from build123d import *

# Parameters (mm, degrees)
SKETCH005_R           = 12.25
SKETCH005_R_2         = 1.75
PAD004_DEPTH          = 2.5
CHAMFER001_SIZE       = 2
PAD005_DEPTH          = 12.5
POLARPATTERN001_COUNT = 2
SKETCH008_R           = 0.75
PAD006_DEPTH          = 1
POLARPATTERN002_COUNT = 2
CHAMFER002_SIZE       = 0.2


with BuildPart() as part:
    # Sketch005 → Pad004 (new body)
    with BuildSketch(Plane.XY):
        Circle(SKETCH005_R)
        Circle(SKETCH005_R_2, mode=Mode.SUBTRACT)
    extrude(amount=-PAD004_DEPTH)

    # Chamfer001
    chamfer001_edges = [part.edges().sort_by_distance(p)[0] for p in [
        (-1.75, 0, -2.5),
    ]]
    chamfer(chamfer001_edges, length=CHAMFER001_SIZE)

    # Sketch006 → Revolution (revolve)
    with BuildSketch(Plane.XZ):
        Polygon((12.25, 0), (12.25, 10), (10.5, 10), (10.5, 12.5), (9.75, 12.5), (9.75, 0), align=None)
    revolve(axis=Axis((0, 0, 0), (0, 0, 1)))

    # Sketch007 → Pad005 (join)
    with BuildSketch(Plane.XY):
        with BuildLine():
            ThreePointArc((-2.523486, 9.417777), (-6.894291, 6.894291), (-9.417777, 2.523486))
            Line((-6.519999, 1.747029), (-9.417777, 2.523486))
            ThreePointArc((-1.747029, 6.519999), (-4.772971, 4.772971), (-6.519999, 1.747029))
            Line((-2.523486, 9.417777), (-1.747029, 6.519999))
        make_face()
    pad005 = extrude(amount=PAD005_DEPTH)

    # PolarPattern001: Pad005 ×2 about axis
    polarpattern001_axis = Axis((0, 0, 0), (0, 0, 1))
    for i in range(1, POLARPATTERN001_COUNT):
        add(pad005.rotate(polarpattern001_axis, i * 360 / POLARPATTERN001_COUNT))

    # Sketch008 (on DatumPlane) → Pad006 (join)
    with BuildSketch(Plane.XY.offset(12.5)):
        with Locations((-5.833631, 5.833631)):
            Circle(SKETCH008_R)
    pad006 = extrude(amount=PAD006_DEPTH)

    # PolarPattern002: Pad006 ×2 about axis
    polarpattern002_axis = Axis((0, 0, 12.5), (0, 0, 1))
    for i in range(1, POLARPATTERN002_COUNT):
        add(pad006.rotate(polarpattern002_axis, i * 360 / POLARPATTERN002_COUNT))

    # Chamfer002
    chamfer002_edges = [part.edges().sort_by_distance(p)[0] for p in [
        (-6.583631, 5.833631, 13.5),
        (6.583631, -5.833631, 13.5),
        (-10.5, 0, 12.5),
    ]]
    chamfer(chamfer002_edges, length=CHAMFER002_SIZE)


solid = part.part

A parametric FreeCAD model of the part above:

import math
import FreeCAD as App
import Part
import Sketcher
from FreeCAD import Vector
Q = App.Units.Quantity


def edges_at(feature, points):
    """Names of the edges that pass closest to the given points."""
    edges = feature.Shape.Edges
    near = lambda p: min(range(len(edges)), key=lambda i: edges[i].distToShape(Part.Vertex(*p))[0])
    return sorted({f"Edge{near(p) + 1}" for p in points})


def add_polygon(sketch, points):
    """Adds a closed chain of lines whose ends are joined by coincident constraints."""
    first, n = sketch.GeometryCount, len(points)
    for a, b in zip(points, points[1:] + points[:1]):
        sketch.addGeometry(Part.LineSegment(App.Vector(*a, 0), App.Vector(*b, 0)), False)
    for i in range(n):
        sketch.addConstraint(Sketcher.Constraint("Coincident", first + i, 2, first + (i + 1) % n, 1))

doc = App.newDocument("Part")
body = doc.addObject("PartDesign::Body", "Body")

sketch1 = body.newObject("Sketcher::SketchObject", "Sketch")
sketch1.AttachmentSupport = (doc.getObject("XY_Plane"), [""])
sketch1.MapMode = "FlatFace"
sketch1.addGeometry([
    Part.Circle(Vector(0, 0, 0), Vector(0, 0, 1), 12.2),
    Part.Circle(Vector(0, 0, 0), Vector(0, 0, 1), 1.8),
], False)
sketch1.addConstraint([
    Sketcher.Constraint("Coincident", 0, 3, -1, 1),
    Sketcher.Constraint("Coincident", 1, 3, -1, 1),
    Sketcher.Constraint("Diameter", 0, Q("24.5 mm")),
    Sketcher.Constraint("Diameter", 1, Q("3.5 mm")),
])
pad1 = body.newObject("PartDesign::Pad", "Pad")
pad1.Profile = sketch1
pad1.Length = 2.5
pad1.Reversed = True
doc.recompute()

chamfer = body.newObject("PartDesign::Chamfer", "Chamfer")
chamfer.Base = (pad1, edges_at(pad1, [(-1.75, 0, -2.5)]))
chamfer.Size = 2

sketch2 = body.newObject("Sketcher::SketchObject", "Sketch001")
sketch2.AttachmentSupport = (doc.getObject("XZ_Plane"), [""])
sketch2.MapMode = "FlatFace"
add_polygon(sketch2, [(12.2, 0), (12.2, 10), (10.5, 10), (10.5, 12.5), (9.8, 12.5), (9.8, 0)])
sketch2.addConstraint([
    Sketcher.Constraint("Vertical", 0),
    Sketcher.Constraint("Horizontal", 1),
    Sketcher.Constraint("Vertical", 2),
    Sketcher.Constraint("Horizontal", 3),
    Sketcher.Constraint("Vertical", 4),
    Sketcher.Constraint("Horizontal", 5),
    Sketcher.Constraint("PointOnObject", 4, 2, -1),
    Sketcher.Constraint("Equal", 5, 2),
    Sketcher.Constraint("DistanceY", 0, 1, 0, 2, Q("10 mm")),
    Sketcher.Constraint("DistanceX", 5, 1, 5, 2, Q("2.5 mm")),
    Sketcher.Constraint("DistanceX", 1, 2, 1, 1, Q("1.75 mm")),
    Sketcher.Constraint("DistanceX", -1, 1, 1, 2, Q("10.5 mm")),
])
revolution = body.newObject("PartDesign::Revolution", "Revolution")
revolution.Profile = sketch2
revolution.ReferenceAxis = (sketch2, ["V_Axis"])
revolution.Angle = 360

sketch3 = body.newObject("Sketcher::SketchObject", "Sketch002")
sketch3.AttachmentSupport = (doc.getObject("XY_Plane"), [""])
sketch3.MapMode = "FlatFace"
sketch3.addGeometry([
    Part.ArcOfCircle(Part.Circle(Vector(0, 0, 0), Vector(0, 0, 1), 9.8), math.radians(105), math.radians(165)),
    Part.LineSegment(Vector(-9.4, 2.5, 0), Vector(-6.5, 1.7, 0)),
    Part.ArcOfCircle(Part.Circle(Vector(0, 0, 0), Vector(0, 0, 1), 6.7), math.radians(105), math.radians(165)),
    Part.LineSegment(Vector(-1.7, 6.5, 0), Vector(-2.5, 9.4, 0)),
], False)
sketch3.addConstraint([
    Sketcher.Constraint("Coincident", 0, 2, 1, 1),
    Sketcher.Constraint("Coincident", 1, 2, 2, 2),
    Sketcher.Constraint("Coincident", 2, 1, 3, 1),
    Sketcher.Constraint("Coincident", 3, 2, 0, 1),
    Sketcher.Constraint("Coincident", 0, 3, -1, 1),
    Sketcher.Constraint("Coincident", 2, 3, -1, 1),
    Sketcher.Constraint("Angle", 1, Q("-14.999995 deg")),
    Sketcher.Constraint("Angle", 3, Q("104.999995 deg")),
    Sketcher.Constraint("Distance", 1, Q("3 mm")),
    Sketcher.Constraint("DistanceX", 1, 2, -1, 1, Q("6.519999 mm")),
    Sketcher.Constraint("DistanceY", -1, 1, 2, 1, Q("6.519999 mm")),
    Sketcher.Constraint("Radius", 0, Q("9.750003 mm")),
])
pad2 = body.newObject("PartDesign::Pad", "Pad001")
pad2.Profile = sketch3
pad2.Length = 12.5
doc.recompute()

polarpattern = body.newObject("PartDesign::PolarPattern", "PolarPattern")
polarpattern.Originals = [pad2]
polarpattern.Axis = (doc.getObject("Z_Axis"), [""])
polarpattern.Angle = 360
polarpattern.Occurrences = 2
body.Tip = polarpattern

sketch4 = body.newObject("Sketcher::SketchObject", "Sketch003")
sketch4.AttachmentSupport = (doc.getObject("XY_Plane"), [""])
sketch4.MapMode = "FlatFace"
sketch4.AttachmentOffset = App.Placement(Vector(0, 0, 12.5), App.Rotation())
sketch4.addGeometry(Part.Circle(Vector(-5.8, 5.8, 0), Vector(0, 0, 1), 0.8), False)
sketch4.addConstraint([
    Sketcher.Constraint("Diameter", 0, Q("1.5 mm")),
    Sketcher.Constraint("DistanceX", 0, 3, -1, 1, Q("5.833631 mm")),
    Sketcher.Constraint("DistanceY", -1, 1, 0, 3, Q("5.833631 mm")),
])
pad3 = body.newObject("PartDesign::Pad", "Pad002")
pad3.Profile = sketch4
pad3.Length = 1
doc.recompute()

polarpattern2 = body.newObject("PartDesign::PolarPattern", "PolarPattern001")
polarpattern2.Originals = [pad3]
polarpattern2.Axis = (doc.getObject("Z_Axis"), [""])
polarpattern2.Angle = 360
polarpattern2.Occurrences = 2
body.Tip = polarpattern2
doc.recompute()

chamfer2 = body.newObject("PartDesign::Chamfer", "Chamfer001")
chamfer2.Base = (polarpattern2, edges_at(polarpattern2, [(-6.584, 5.834, 13.5), (6.584, -5.834, 13.5), (-10.5, 0, 12.5)]))
chamfer2.Size = 0.2

doc.recompute()
